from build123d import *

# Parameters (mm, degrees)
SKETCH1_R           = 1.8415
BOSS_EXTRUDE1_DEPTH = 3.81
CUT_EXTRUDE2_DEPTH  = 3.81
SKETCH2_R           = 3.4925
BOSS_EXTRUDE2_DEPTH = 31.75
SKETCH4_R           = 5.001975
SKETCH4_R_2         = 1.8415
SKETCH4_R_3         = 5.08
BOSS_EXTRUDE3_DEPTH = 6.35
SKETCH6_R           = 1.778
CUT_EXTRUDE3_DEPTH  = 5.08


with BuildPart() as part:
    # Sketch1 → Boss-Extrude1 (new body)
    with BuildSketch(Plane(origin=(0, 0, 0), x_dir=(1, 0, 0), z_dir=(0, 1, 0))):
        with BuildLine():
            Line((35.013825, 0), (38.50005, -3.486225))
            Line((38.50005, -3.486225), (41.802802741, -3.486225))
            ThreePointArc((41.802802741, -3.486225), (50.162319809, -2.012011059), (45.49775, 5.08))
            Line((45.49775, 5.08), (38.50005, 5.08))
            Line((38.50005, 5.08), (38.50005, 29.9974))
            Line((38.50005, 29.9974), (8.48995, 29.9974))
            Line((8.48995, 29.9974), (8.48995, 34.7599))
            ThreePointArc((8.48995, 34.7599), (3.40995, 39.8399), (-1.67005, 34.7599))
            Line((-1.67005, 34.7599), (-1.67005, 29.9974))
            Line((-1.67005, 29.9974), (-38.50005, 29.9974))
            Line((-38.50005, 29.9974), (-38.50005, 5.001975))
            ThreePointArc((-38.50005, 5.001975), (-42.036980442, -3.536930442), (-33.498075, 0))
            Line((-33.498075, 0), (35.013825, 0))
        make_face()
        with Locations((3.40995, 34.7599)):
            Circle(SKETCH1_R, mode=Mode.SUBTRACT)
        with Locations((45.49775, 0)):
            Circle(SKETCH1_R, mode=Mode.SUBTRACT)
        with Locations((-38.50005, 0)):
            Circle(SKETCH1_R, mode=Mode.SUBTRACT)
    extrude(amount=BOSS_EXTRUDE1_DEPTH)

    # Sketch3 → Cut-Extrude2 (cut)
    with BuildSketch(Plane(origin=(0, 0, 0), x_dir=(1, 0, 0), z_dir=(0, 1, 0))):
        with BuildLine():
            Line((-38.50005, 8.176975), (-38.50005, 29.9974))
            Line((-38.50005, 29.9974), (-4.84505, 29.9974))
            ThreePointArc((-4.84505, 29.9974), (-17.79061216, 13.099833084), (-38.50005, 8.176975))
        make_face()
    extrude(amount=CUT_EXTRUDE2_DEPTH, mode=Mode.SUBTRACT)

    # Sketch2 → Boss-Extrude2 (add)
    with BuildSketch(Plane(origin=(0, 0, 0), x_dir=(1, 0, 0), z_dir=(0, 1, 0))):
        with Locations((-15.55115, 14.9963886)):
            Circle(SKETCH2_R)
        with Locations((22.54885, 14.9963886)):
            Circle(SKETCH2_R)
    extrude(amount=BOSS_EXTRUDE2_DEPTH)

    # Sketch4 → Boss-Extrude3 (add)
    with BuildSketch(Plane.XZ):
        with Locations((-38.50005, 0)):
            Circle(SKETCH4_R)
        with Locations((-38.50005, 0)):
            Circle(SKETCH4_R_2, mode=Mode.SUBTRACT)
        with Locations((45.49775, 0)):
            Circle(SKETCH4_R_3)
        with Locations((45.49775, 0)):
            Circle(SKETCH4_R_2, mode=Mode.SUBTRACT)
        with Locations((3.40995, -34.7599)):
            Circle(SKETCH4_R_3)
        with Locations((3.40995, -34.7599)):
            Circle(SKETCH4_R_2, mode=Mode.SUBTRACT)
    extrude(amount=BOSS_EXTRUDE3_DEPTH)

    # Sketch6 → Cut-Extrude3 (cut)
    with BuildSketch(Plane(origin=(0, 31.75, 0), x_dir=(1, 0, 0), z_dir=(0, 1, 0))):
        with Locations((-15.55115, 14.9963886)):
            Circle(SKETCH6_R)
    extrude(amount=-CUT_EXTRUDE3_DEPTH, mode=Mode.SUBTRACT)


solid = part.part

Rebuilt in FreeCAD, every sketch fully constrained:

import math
import FreeCAD as App
import Part
import Sketcher
Q = App.Units.Quantity

doc = App.newDocument("Part")
body = doc.addObject("PartDesign::Body", "Body")

# Sketch on XZ plane
sketch1 = body.newObject("Sketcher::SketchObject", "Sketch")
sketch1.AttachmentSupport = (doc.getObject("XZ_Plane"), [""])
sketch1.MapMode = "FlatFace"
sketch1.addGeometry([
    Part.LineSegment(App.Vector(35, 0, 0), App.Vector(38.5, 3.5, 0)),  # 0
    Part.LineSegment(App.Vector(38.5, 3.5, 0), App.Vector(41.8, 3.5, 0)),  # 1
    Part.ArcOfCircle(Part.Circle(App.Vector(45.5, 0, 0), App.Vector(0, 0, 1), 5.1), math.radians(-90), math.radians(137)),  # 2
    Part.LineSegment(App.Vector(45.5, -5.1, 0), App.Vector(38.5, -5.1, 0)),  # 3
    Part.LineSegment(App.Vector(38.5, -5.1, 0), App.Vector(38.5, -30, 0)),  # 4
    Part.LineSegment(App.Vector(38.5, -30, 0), App.Vector(8.5, -30, 0)),  # 5
    Part.LineSegment(App.Vector(8.5, -30, 0), App.Vector(8.5, -34.8, 0)),  # 6
    Part.ArcOfCircle(Part.Circle(App.Vector(3.4, -34.8, 0), App.Vector(0, 0, 1), 5.1), math.radians(180), math.radians(360)),  # 7
    Part.LineSegment(App.Vector(-1.7, -34.8, 0), App.Vector(-1.7, -30, 0)),  # 8
    Part.LineSegment(App.Vector(-1.7, -30, 0), App.Vector(-38.5, -30, 0)),  # 9
    Part.LineSegment(App.Vector(-38.5, -30, 0), App.Vector(-38.5, -5, 0)),  # 10
    Part.ArcOfCircle(Part.Circle(App.Vector(-38.5, 0, 0), App.Vector(0, 0, 1), 5), math.radians(0), math.radians(270)),  # 11
    Part.LineSegment(App.Vector(-33.5, 0, 0), App.Vector(35, 0, 0)),  # 12
    Part.Circle(App.Vector(-38.5, 0, 0), App.Vector(0, 0, 1), 1.8),  # 13
    Part.Circle(App.Vector(45.5, 0, 0), App.Vector(0, 0, 1), 1.8),  # 14
    Part.Circle(App.Vector(3.4, -34.8, 0), App.Vector(0, 0, 1), 1.8),  # 15
], False)
sketch1.addConstraint([
    Sketcher.Constraint("Coincident", 0, 2, 1, 1),
    Sketcher.Constraint("Coincident", 1, 2, 2, 2),
    Sketcher.Constraint("Tangent", 2, 1, 3, 1),
    Sketcher.Constraint("Coincident", 3, 2, 4, 1),
    Sketcher.Constraint("Coincident", 4, 2, 5, 1),
    Sketcher.Constraint("Coincident", 5, 2, 6, 1),
    Sketcher.Constraint("Tangent", 6, 2, 7, 2),
    Sketcher.Constraint("Tangent", 7, 1, 8, 1),
    Sketcher.Constraint("Coincident", 8, 2, 9, 1),
    Sketcher.Constraint("Coincident", 9, 2, 10, 1),
    Sketcher.Constraint("Coincident", 10, 2, 11, 2),
    Sketcher.Constraint("Coincident", 11, 1, 12, 1),
    Sketcher.Constraint("Coincident", 12, 2, 0, 1),
    Sketcher.Constraint("Horizontal", 1),
    Sketcher.Constraint("Horizontal", 3),
    Sketcher.Constraint("Vertical", 4),
    Sketcher.Constraint("Horizontal", 5),
    Sketcher.Constraint("Vertical", 6),
    Sketcher.Constraint("Vertical", 8),
    Sketcher.Constraint("Horizontal", 9),
    Sketcher.Constraint("Vertical", 10),
    Sketcher.Constraint("Horizontal", 12),
    Sketcher.Constraint("Coincident", 13, 3, 11, 3),
    Sketcher.Constraint("Coincident", 14, 3, 2, 3),
    Sketcher.Constraint("Coincident", 15, 3, 7, 3),
    Sketcher.Constraint("Equal", 2, 7),
    Sketcher.Constraint("Equal", 13, 14),
    Sketcher.Constraint("Equal", 14, 15),
    Sketcher.Constraint("Symmetric", 4, 2, 9, 2, -2),
    Sketcher.Constraint("PointOnObject", 2, 3, -1),
    Sketcher.Constraint("PointOnObject", 11, 3, -1),
    Sketcher.Constraint("PointOnObject", 11, 1, -1),
    Sketcher.Constraint("Vertical", 0, 2, 3, 2),
    Sketcher.Constraint("Vertical", 13, 3, 9, 2),
    Sketcher.Constraint("Radius", 2, Q("0.2 in")),
    Sketcher.Constraint("Diameter", 13, Q("0.145 in")),
    Sketcher.Constraint("Angle", 0, Q("45 deg")),
    Sketcher.Constraint("DistanceX", 9, 2, 9, 1, Q("1.45 in")),
    Sketcher.Constraint("DistanceY", 4, 2, 4, 1, Q("0.981 in")),
    Sketcher.Constraint("DistanceY", 6, 2, 6, 1, Q("0.1875 in")),
    Sketcher.Constraint("DistanceX", 3, 2, 3, 1, Q("0.2755 in")),
    Sketcher.Constraint("DistanceX", 5, 2, 5, 1, Q("1.1815 in")),
    Sketcher.Constraint("DistanceX", 12, 1, 12, 2, 68.5119),
    Sketcher.Constraint("Radius", 11, 5.001975),
])
pad1 = body.newObject("PartDesign::Pad", "Pad")
pad1.Profile = sketch1
pad1.Length = Q("0.15 in")
pad1.Reversed = True

# Sketch on XZ plane
sketch2 = body.newObject("Sketcher::SketchObject", "Sketch001")
sketch2.AttachmentSupport = (doc.getObject("XZ_Plane"), [""])
sketch2.MapMode = "FlatFace"
sketch2.addGeometry([
    Part.LineSegment(App.Vector(-39, -30, 0), App.Vector(-39, -8, 0)),
    Part.ArcOfCircle(Part.Circle(App.Vector(-35, -40, 0), App.Vector(0, 0, 1), 32), math.radians(18), math.radians(96)),
    Part.LineSegment(App.Vector(-5, -30, 0), App.Vector(-39, -30, 0)),
], False)
sketch2.addConstraint([
    Sketcher.Constraint("Coincident", 0, 2, 1, 2),
    Sketcher.Constraint("Coincident", 1, 1, 2, 1),
    Sketcher.Constraint("Coincident", 2, 2, 0, 1),
    Sketcher.Constraint("Vertical", 0),
    Sketcher.Constraint("Horizontal", 2),
    Sketcher.Constraint("Radius", 1, Q("1.25 in")),
    Sketcher.Constraint("DistanceX", 2, 2, 2, 1, Q("1.325 in")),
    Sketcher.Constraint("DistanceY", 1, 1, -1, 1, Q("1.181 in")),
    Sketcher.Constraint("DistanceY", 0, 1, 0, 2, 21.820425),
    Sketcher.Constraint("DistanceX", 0, 2, -1, 1, 38.50005),
])
pocket1 = body.newObject("PartDesign::Pocket", "Pocket")
pocket1.Profile = sketch2
pocket1.Length = Q("0.15 in")

# Sketch on XZ plane
sketch3 = body.newObject("Sketcher::SketchObject", "Sketch002")
sketch3.AttachmentSupport = (doc.getObject("XZ_Plane"), [""])
sketch3.MapMode = "FlatFace"
sketch3.addGeometry([
    Part.Circle(App.Vector(-15.6, -15, 0), App.Vector(0, 0, 1), 3.5),
    Part.Circle(App.Vector(22.5, -15, 0), App.Vector(0, 0, 1), 3.5),
], False)
sketch3.addConstraint([
    Sketcher.Constraint("Equal", 0, 1),
    Sketcher.Constraint("Horizontal", 0, 3, 1, 3),
    Sketcher.Constraint("Diameter", 0, Q("0.275 in")),
    Sketcher.Constraint("DistanceX", 0, 3, 1, 3, Q("1.5 in")),
    Sketcher.Constraint("DistanceX", 0, 3, -1, 1, 15.55115),
    Sketcher.Constraint("DistanceY", 0, 3, -1, 1, 14.996389),
])
pad2 = body.newObject("PartDesign::Pad", "Pad001")
pad2.Profile = sketch3
pad2.Length = Q("1.25 in")
pad2.Reversed = True

# Sketch on XZ plane
sketch4 = body.newObject("Sketcher::SketchObject", "Sketch003")
sketch4.AttachmentSupport = (doc.getObject("XZ_Plane"), [""])
sketch4.MapMode = "FlatFace"
sketch4.addGeometry([
    Part.Circle(App.Vector(-38.5, 0, 0), App.Vector(0, 0, 1), 5),  # 0
    Part.Circle(App.Vector(-38.5, 0, 0), App.Vector(0, 0, 1), 1.8),  # 1
    Part.Circle(App.Vector(45.5, 0, 0), App.Vector(0, 0, 1), 5.1),  # 2
    Part.Circle(App.Vector(45.5, 0, 0), App.Vector(0, 0, 1), 1.8),  # 3
    Part.Circle(App.Vector(3.4, -34.8, 0), App.Vector(0, 0, 1), 5.1),  # 4
    Part.Circle(App.Vector(3.4, -34.8, 0), App.Vector(0, 0, 1), 1.8),  # 5
], False)
sketch4.addConstraint([
    Sketcher.Constraint("Coincident", 1, 3, 0, 3),
    Sketcher.Constraint("Coincident", 3, 3, 2, 3),
    Sketcher.Constraint("Coincident", 5, 3, 4, 3),
    Sketcher.Constraint("Equal", 1, 3),
    Sketcher.Constraint("Equal", 2, 4),
    Sketcher.Constraint("Equal", 3, 5),
    Sketcher.Constraint("PointOnObject", 0, 3, -1),
    Sketcher.Constraint("PointOnObject", 2, 3, -1),
    Sketcher.Constraint("Diameter", 2, Q("0.4 in")),
    Sketcher.Constraint("Diameter", 1, Q("0.145 in")),
    Sketcher.Constraint("DistanceX", 0, 3, 4, 3, Q("1.65 in")),
    Sketcher.Constraint("Diameter", 0, 10.00395),
    Sketcher.Constraint("DistanceX", 0, 3, 2, 3, Q("3.307 in")),
    Sketcher.Constraint("DistanceY", 4, 3, -1, 1, Q("1.3685 in")),
    Sketcher.Constraint("DistanceX", 0, 3, -1, 1, 38.50005),
])
pad3 = body.newObject("PartDesign::Pad", "Pad002")
pad3.Profile = sketch4
pad3.Length = Q("0.25 in")

# Sketch on XZ plane
sketch5 = body.newObject("Sketcher::SketchObject", "Sketch004")
sketch5.AttachmentSupport = (doc.getObject("XZ_Plane"), [""])
sketch5.MapMode = "FlatFace"
sketch5.AttachmentOffset = App.Placement(App.Vector(0, 0, -1.25 * 25.4), App.Rotation())
sketch5.addGeometry(Part.Circle(App.Vector(-15.6, -15, 0), App.Vector(0, 0, 1), 1.8), False)
sketch5.addConstraint([
    Sketcher.Constraint("Diameter", 0, Q("0.14 in")),
    Sketcher.Constraint("DistanceX", 0, 3, -1, 1, 15.55115),
    Sketcher.Constraint("DistanceY", 0, 3, -1, 1, 14.996389),
])
pocket2 = body.newObject("PartDesign::Pocket", "Pocket001")
pocket2.Profile = sketch5
pocket2.Length = Q("0.2 in")
pocket2.Reversed = True

doc.recompute()
